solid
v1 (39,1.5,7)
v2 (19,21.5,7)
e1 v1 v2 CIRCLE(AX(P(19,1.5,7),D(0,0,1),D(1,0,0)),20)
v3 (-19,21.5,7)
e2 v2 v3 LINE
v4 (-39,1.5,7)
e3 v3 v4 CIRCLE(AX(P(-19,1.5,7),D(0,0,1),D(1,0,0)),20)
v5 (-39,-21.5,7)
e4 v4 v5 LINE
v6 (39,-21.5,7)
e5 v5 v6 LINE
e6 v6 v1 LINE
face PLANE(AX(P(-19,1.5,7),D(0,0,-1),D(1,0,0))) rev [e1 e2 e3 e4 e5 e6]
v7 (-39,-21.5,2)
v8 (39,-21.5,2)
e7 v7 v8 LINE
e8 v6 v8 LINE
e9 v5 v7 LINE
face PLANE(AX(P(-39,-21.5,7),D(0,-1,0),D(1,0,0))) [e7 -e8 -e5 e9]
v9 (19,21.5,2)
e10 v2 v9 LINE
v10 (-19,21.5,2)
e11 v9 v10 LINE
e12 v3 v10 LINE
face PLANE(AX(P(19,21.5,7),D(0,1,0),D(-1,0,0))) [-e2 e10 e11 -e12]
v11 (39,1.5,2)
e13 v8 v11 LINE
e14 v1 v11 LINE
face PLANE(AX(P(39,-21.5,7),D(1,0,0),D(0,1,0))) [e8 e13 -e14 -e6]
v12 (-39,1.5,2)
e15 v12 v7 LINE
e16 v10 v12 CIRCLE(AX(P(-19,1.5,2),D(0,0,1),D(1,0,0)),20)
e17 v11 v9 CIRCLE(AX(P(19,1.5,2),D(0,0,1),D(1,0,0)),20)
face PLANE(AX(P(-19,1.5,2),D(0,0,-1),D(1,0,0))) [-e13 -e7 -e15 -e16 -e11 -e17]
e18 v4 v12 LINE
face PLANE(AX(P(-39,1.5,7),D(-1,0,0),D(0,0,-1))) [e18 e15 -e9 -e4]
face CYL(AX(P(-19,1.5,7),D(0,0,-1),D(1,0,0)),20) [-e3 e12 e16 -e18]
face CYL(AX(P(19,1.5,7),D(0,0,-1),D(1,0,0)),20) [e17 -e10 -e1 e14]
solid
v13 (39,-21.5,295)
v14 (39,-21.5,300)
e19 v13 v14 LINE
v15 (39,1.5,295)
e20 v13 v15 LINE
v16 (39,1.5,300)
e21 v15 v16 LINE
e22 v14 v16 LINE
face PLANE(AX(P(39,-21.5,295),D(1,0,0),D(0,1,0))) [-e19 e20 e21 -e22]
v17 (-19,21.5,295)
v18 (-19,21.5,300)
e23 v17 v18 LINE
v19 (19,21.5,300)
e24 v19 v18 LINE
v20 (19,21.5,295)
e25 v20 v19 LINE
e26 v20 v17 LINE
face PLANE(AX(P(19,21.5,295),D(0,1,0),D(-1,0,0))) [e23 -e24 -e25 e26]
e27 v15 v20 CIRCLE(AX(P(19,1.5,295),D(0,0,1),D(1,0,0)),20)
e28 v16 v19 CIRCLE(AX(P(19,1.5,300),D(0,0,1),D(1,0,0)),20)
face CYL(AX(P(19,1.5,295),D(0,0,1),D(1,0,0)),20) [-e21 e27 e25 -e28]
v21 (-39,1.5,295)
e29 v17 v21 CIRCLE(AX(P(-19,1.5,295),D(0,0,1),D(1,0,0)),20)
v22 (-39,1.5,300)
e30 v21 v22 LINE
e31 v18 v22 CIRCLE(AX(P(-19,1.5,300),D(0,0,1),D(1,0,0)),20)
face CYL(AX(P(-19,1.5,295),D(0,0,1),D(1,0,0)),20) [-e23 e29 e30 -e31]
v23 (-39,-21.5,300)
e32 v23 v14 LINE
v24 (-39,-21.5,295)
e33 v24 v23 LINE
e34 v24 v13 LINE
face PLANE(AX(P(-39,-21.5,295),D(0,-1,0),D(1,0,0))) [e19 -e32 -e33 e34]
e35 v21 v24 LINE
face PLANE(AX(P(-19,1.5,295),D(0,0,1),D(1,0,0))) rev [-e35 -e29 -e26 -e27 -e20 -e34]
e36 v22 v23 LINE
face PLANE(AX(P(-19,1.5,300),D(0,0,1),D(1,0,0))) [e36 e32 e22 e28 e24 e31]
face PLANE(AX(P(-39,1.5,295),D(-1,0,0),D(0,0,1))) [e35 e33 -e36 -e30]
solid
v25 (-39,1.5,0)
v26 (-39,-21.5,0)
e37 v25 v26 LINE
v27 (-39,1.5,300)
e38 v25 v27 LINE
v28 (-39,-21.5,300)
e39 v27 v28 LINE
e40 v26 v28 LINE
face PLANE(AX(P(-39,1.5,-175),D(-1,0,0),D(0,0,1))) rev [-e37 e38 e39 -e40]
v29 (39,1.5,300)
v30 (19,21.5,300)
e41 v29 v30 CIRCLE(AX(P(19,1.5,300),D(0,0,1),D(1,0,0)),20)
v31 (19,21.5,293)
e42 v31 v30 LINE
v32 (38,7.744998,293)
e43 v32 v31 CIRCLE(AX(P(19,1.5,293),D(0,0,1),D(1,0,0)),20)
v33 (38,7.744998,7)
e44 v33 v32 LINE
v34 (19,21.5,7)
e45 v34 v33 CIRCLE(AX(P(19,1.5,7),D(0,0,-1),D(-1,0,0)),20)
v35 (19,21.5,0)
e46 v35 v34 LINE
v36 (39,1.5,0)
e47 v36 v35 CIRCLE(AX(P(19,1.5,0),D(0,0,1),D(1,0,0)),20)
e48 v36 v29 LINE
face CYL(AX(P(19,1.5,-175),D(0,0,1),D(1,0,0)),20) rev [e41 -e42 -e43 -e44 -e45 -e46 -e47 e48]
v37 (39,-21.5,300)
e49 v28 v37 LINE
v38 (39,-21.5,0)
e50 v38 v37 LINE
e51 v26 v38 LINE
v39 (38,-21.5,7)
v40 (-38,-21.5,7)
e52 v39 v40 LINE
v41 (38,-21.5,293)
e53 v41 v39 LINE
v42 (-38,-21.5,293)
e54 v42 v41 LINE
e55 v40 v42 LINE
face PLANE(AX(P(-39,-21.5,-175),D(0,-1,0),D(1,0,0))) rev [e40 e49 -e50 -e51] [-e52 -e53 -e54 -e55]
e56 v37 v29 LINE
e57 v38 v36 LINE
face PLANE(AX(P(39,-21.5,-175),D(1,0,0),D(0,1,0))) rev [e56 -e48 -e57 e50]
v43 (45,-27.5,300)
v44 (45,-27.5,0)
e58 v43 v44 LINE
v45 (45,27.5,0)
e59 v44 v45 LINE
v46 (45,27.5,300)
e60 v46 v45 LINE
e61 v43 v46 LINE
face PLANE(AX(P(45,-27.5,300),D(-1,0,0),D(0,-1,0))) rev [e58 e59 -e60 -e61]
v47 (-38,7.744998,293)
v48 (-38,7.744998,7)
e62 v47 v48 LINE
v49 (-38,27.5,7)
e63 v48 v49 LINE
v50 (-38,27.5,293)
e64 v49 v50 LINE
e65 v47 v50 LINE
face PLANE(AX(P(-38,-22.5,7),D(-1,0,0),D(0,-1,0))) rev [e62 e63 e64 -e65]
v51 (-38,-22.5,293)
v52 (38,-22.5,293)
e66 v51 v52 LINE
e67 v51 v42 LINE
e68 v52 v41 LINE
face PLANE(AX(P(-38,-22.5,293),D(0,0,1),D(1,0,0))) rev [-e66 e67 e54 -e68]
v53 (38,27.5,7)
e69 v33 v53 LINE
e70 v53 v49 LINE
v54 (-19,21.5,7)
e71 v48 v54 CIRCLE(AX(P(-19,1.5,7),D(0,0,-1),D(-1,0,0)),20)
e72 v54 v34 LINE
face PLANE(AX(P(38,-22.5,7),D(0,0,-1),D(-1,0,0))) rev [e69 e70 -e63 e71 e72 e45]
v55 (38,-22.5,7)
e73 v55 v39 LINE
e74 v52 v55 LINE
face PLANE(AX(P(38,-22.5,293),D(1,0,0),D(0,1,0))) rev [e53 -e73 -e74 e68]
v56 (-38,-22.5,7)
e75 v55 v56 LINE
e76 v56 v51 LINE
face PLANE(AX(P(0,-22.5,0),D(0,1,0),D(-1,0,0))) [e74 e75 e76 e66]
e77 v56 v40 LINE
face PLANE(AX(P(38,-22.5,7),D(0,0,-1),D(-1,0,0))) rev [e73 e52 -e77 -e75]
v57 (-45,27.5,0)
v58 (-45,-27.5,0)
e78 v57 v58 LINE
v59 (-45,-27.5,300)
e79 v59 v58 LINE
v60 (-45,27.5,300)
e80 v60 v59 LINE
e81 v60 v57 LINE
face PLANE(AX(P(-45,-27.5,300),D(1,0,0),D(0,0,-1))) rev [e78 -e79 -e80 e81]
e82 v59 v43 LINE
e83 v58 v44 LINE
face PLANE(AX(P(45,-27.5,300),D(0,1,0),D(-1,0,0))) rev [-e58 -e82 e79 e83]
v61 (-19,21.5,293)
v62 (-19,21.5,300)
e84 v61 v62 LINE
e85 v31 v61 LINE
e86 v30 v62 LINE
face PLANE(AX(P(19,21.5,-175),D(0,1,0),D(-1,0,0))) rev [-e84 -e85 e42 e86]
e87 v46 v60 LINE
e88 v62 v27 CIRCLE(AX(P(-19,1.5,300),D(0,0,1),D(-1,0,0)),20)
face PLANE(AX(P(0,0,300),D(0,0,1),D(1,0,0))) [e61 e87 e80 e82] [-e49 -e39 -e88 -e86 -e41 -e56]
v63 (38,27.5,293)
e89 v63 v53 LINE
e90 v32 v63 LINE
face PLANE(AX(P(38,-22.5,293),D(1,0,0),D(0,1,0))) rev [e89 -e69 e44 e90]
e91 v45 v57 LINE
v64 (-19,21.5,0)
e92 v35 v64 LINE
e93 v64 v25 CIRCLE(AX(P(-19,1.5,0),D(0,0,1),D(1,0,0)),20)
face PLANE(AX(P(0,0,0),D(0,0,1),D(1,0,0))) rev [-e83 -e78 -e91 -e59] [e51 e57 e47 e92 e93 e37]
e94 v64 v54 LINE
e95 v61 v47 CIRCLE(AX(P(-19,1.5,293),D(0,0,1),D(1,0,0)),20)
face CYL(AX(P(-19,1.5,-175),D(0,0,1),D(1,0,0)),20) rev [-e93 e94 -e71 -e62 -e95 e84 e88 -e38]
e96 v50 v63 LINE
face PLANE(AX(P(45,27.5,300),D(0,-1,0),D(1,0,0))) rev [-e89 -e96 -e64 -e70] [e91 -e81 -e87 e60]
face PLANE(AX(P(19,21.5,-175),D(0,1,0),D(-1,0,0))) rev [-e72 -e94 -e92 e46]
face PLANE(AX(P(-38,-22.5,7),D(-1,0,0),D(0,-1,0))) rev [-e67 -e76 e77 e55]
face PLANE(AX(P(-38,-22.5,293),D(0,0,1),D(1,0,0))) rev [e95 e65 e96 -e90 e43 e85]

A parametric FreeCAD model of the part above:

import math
import FreeCAD as App
import Part
import Sketcher
Q = App.Units.Quantity

doc = App.newDocument("Part")
body = doc.addObject("PartDesign::Body", "Body")

# Sketch on XY plane
sketch1 = body.newObject("Sketcher::SketchObject", "Sketch")
sketch1.AttachmentSupport = (doc.getObject("XY_Plane"), [""])
sketch1.MapMode = "FlatFace"
sketch1.addGeometry([
    Part.LineSegment(App.Vector(-45, 28, 0), App.Vector(-45, -28, 0)),
    Part.LineSegment(App.Vector(-45, -28, 0), App.Vector(45, -28, 0)),
    Part.LineSegment(App.Vector(45, -28, 0), App.Vector(45, 28, 0)),
    Part.LineSegment(App.Vector(45, 28, 0), App.Vector(-45, 28, 0)),
], False)
sketch1.addConstraint([
    Sketcher.Constraint("Coincident", 0, 2, 1, 1),
    Sketcher.Constraint("Coincident", 1, 2, 2, 1),
    Sketcher.Constraint("Coincident", 2, 2, 3, 1),
    Sketcher.Constraint("Coincident", 3, 2, 0, 1),
    Sketcher.Constraint("Vertical", 0),
    Sketcher.Constraint("Horizontal", 1),
    Sketcher.Constraint("Vertical", 2),
    Sketcher.Constraint("Horizontal", 3),
    Sketcher.Constraint("Symmetric", 0, 2, 2, 2, -1, 1),
    Sketcher.Constraint("DistanceX", 1, 1, 1, 2, Q("90 mm")),
    Sketcher.Constraint("DistanceY", 0, 2, 0, 1, Q("55 mm")),
])
pad1 = body.newObject("PartDesign::Pad", "Pad")
pad1.Profile = sketch1
pad1.Length = 300

# Sketch on XZ plane
sketch2 = body.newObject("Sketcher::SketchObject", "Sketch001")
sketch2.AttachmentSupport = (doc.getObject("XZ_Plane"), [""])
sketch2.MapMode = "FlatFace"
sketch2.AttachmentOffset = App.Placement(App.Vector(0, 0, -27.5), App.Rotation())
sketch2.addGeometry([
    Part.LineSegment(App.Vector(-38, 7, 0), App.Vector(-38, 293, 0)),
    Part.LineSegment(App.Vector(-38, 293, 0), App.Vector(38, 293, 0)),
    Part.LineSegment(App.Vector(38, 293, 0), App.Vector(38, 7, 0)),
    Part.LineSegment(App.Vector(38, 7, 0), App.Vector(-38, 7, 0)),
], False)
sketch2.addConstraint([
    Sketcher.Constraint("Coincident", 0, 2, 1, 1),
    Sketcher.Constraint("Coincident", 1, 2, 2, 1),
    Sketcher.Constraint("Coincident", 2, 2, 3, 1),
    Sketcher.Constraint("Coincident", 3, 2, 0, 1),
    Sketcher.Constraint("Vertical", 0),
    Sketcher.Constraint("Horizontal", 1),
    Sketcher.Constraint("Vertical", 2),
    Sketcher.Constraint("Horizontal", 3),
    Sketcher.Constraint("DistanceX", 1, 1, 1, 2, Q("76 mm")),
    Sketcher.Constraint("DistanceY", 0, 1, 0, 2, Q("286 mm")),
    Sketcher.Constraint("DistanceX", 0, 2, -1, 1, Q("38 mm")),
    Sketcher.Constraint("DistanceY", -1, 1, 0, 2, Q("293 mm")),
])
pocket1 = body.newObject("PartDesign::Pocket", "Pocket")
pocket1.Profile = sketch2
pocket1.Length = 50
pocket1.Reversed = True

# Sketch on XY plane
sketch3 = body.newObject("Sketcher::SketchObject", "Sketch002")
sketch3.AttachmentSupport = (doc.getObject("XY_Plane"), [""])
sketch3.MapMode = "FlatFace"
sketch3.AttachmentOffset = App.Placement(App.Vector(0, 0, 300), App.Rotation())
sketch3.addGeometry([
    Part.LineSegment(App.Vector(-39, 2, 0), App.Vector(-39, -22, 0)),  # 0
    Part.LineSegment(App.Vector(-39, -22, 0), App.Vector(39, -22, 0)),  # 1
    Part.LineSegment(App.Vector(39, -22, 0), App.Vector(39, 2, 0)),  # 2
    Part.ArcOfCircle(Part.Circle(App.Vector(19, 2, 0), App.Vector(0, 0, 1), 20), math.radians(0), math.radians(90)),  # 3
    Part.LineSegment(App.Vector(19, 22, 0), App.Vector(-19, 22, 0)),  # 4
    Part.ArcOfCircle(Part.Circle(App.Vector(-19, 2, 0), App.Vector(0, 0, 1), 20), math.radians(90), math.radians(180)),  # 5
], False)
sketch3.addConstraint([
    Sketcher.Constraint("Coincident", 0, 2, 1, 1),
    Sketcher.Constraint("Coincident", 1, 2, 2, 1),
    Sketcher.Constraint("Tangent", 2, 2, 3, 1),
    Sketcher.Constraint("Tangent", 3, 2, 4, 1),
    Sketcher.Constraint("Tangent", 4, 2, 5, 1),
    Sketcher.Constraint("Tangent", 5, 2, 0, 1),
    Sketcher.Constraint("Vertical", 0),
    Sketcher.Constraint("Horizontal", 1),
    Sketcher.Constraint("Vertical", 2),
    Sketcher.Constraint("Horizontal", 4),
    Sketcher.Constraint("Equal", 3, 5),
    Sketcher.Constraint("Radius", 3, Q("20 mm")),
    Sketcher.Constraint("DistanceX", 1, 1, 1, 2, Q("78 mm")),
    Sketcher.Constraint("DistanceY", 0, 2, 0, 1, Q("23 mm")),
    Sketcher.Constraint("DistanceX", -1, 1, 3, 3, Q("19 mm")),
    Sketcher.Constraint("DistanceY", -1, 1, 3, 3, Q("1.5 mm")),
])
pocket2 = body.newObject("PartDesign::Pocket", "Pocket001")
pocket2.Profile = sketch3
pocket2.Length = 475
body2 = doc.addObject("PartDesign::Body", "Body001")

# Sketch on XY plane
sketch4 = body2.newObject("Sketcher::SketchObject", "Sketch003")
sketch4.AttachmentSupport = (doc.getObject("XY_Plane001"), [""])
sketch4.MapMode = "FlatFace"
sketch4.AttachmentOffset = App.Placement(App.Vector(0, 0, 300), App.Rotation())
sketch4.addGeometry([
    Part.LineSegment(App.Vector(-39, 2, 0), App.Vector(-39, -22, 0)),  # 0
    Part.LineSegment(App.Vector(-39, -22, 0), App.Vector(39, -22, 0)),  # 1
    Part.LineSegment(App.Vector(39, -22, 0), App.Vector(39, 2, 0)),  # 2
    Part.ArcOfCircle(Part.Circle(App.Vector(19, 2, 0), App.Vector(0, 0, 1), 20), math.radians(0), math.radians(90)),  # 3
    Part.LineSegment(App.Vector(19, 22, 0), App.Vector(-19, 22, 0)),  # 4
    Part.ArcOfCircle(Part.Circle(App.Vector(-19, 2, 0), App.Vector(0, 0, 1), 20), math.radians(90), math.radians(180)),  # 5
], False)
sketch4.addConstraint([
    Sketcher.Constraint("Coincident", 0, 2, 1, 1),
    Sketcher.Constraint("Coincident", 1, 2, 2, 1),
    Sketcher.Constraint("Tangent", 2, 2, 3, 1),
    Sketcher.Constraint("Tangent", 3, 2, 4, 1),
    Sketcher.Constraint("Tangent", 4, 2, 5, 1),
    Sketcher.Constraint("Tangent", 5, 2, 0, 1),
    Sketcher.Constraint("Vertical", 0),
    Sketcher.Constraint("Horizontal", 1),
    Sketcher.Constraint("Vertical", 2),
    Sketcher.Constraint("Horizontal", 4),
    Sketcher.Constraint("Equal", 3, 5),
    Sketcher.Constraint("Radius", 3, Q("20 mm")),
    Sketcher.Constraint("DistanceX", 1, 1, 1, 2, Q("78 mm")),
    Sketcher.Constraint("DistanceY", 0, 2, 0, 1, Q("23 mm")),
    Sketcher.Constraint("DistanceX", -1, 1, 3, 3, Q("19 mm")),
    Sketcher.Constraint("DistanceY", -1, 1, 3, 3, Q("1.5 mm")),
])
pad2 = body2.newObject("PartDesign::Pad", "Pad001")
pad2.Profile = sketch4
pad2.Length = 5
pad2.Reversed = True
body3 = doc.addObject("PartDesign::Body", "Body002")
doc.recompute()

mirroring = doc.addObject("Part::Mirroring", "Mirroring")
mirroring.Source = body2
mirroring.Base = App.Vector(0, 0, 151)
mirroring.Normal = App.Vector(0, 0, -1)
body3.BaseFeature = mirroring
doc.recompute()
mirroring.Visibility = False

doc.recompute()
